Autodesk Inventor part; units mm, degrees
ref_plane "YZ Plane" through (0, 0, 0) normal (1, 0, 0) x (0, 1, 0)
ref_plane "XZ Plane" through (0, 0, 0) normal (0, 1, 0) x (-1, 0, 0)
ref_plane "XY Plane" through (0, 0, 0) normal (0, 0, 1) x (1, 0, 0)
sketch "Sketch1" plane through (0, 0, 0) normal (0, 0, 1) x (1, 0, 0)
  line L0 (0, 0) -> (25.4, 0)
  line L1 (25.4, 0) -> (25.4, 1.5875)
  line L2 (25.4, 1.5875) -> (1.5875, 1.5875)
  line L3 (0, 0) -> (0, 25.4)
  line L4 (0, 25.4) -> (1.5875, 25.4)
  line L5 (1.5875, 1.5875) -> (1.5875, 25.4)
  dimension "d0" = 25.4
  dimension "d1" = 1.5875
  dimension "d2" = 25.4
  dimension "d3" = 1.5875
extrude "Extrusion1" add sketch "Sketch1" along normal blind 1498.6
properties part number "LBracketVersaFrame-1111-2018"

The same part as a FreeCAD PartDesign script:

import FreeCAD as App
import Part
import Sketcher

V = App.Vector
Q = App.Units.Quantity


def add_polygon(sketch, points):
    """Adds a closed chain of lines whose ends are joined by coincident constraints."""
    first, n = sketch.GeometryCount, len(points)
    for a, b in zip(points, points[1:] + points[:1]):
        sketch.addGeometry(Part.LineSegment(App.Vector(*a, 0), App.Vector(*b, 0)), False)
    for i in range(n):
        sketch.addConstraint(Sketcher.Constraint("Coincident", first + i, 2, first + (i + 1) % n, 1))

doc = App.newDocument("Part")
body = doc.addObject("PartDesign::Body", "Body")

# Sketch on XY plane
sketch1 = body.newObject("Sketcher::SketchObject", "Sketch")
sketch1.AttachmentSupport = (doc.getObject("XY_Plane"), [""])
sketch1.MapMode = "FlatFace"
add_polygon(sketch1, [(0, 25.4), (0, 0), (25.4, 0), (25.4, 1.6), (1.6, 1.6), (1.6, 25.4)])  # lines 0-5
sketch1.addConstraint(Sketcher.Constraint("Vertical", 0))
sketch1.addConstraint(Sketcher.Constraint("Horizontal", 1))
sketch1.addConstraint(Sketcher.Constraint("Vertical", 2))
sketch1.addConstraint(Sketcher.Constraint("Horizontal", 3))
sketch1.addConstraint(Sketcher.Constraint("Vertical", 4))
sketch1.addConstraint(Sketcher.Constraint("Horizontal", 5))
sketch1.addConstraint(Sketcher.Constraint("Coincident", 0, 2, -1, 1))
sketch1.addConstraint(Sketcher.Constraint("Equal", 1, 0))
sketch1.addConstraint(Sketcher.Constraint("Equal", 5, 2))
sketch1.addConstraint(Sketcher.Constraint("DistanceX", 1, 1, 1, 2, Q("1 in")))
sketch1.addConstraint(Sketcher.Constraint("DistanceX", 5, 2, 5, 1, Q("0.0625 in")))
pad1 = body.newObject("PartDesign::Pad", "Pad")
pad1.Profile = sketch1
pad1.Length = Q("59 in")

doc.recompute()
